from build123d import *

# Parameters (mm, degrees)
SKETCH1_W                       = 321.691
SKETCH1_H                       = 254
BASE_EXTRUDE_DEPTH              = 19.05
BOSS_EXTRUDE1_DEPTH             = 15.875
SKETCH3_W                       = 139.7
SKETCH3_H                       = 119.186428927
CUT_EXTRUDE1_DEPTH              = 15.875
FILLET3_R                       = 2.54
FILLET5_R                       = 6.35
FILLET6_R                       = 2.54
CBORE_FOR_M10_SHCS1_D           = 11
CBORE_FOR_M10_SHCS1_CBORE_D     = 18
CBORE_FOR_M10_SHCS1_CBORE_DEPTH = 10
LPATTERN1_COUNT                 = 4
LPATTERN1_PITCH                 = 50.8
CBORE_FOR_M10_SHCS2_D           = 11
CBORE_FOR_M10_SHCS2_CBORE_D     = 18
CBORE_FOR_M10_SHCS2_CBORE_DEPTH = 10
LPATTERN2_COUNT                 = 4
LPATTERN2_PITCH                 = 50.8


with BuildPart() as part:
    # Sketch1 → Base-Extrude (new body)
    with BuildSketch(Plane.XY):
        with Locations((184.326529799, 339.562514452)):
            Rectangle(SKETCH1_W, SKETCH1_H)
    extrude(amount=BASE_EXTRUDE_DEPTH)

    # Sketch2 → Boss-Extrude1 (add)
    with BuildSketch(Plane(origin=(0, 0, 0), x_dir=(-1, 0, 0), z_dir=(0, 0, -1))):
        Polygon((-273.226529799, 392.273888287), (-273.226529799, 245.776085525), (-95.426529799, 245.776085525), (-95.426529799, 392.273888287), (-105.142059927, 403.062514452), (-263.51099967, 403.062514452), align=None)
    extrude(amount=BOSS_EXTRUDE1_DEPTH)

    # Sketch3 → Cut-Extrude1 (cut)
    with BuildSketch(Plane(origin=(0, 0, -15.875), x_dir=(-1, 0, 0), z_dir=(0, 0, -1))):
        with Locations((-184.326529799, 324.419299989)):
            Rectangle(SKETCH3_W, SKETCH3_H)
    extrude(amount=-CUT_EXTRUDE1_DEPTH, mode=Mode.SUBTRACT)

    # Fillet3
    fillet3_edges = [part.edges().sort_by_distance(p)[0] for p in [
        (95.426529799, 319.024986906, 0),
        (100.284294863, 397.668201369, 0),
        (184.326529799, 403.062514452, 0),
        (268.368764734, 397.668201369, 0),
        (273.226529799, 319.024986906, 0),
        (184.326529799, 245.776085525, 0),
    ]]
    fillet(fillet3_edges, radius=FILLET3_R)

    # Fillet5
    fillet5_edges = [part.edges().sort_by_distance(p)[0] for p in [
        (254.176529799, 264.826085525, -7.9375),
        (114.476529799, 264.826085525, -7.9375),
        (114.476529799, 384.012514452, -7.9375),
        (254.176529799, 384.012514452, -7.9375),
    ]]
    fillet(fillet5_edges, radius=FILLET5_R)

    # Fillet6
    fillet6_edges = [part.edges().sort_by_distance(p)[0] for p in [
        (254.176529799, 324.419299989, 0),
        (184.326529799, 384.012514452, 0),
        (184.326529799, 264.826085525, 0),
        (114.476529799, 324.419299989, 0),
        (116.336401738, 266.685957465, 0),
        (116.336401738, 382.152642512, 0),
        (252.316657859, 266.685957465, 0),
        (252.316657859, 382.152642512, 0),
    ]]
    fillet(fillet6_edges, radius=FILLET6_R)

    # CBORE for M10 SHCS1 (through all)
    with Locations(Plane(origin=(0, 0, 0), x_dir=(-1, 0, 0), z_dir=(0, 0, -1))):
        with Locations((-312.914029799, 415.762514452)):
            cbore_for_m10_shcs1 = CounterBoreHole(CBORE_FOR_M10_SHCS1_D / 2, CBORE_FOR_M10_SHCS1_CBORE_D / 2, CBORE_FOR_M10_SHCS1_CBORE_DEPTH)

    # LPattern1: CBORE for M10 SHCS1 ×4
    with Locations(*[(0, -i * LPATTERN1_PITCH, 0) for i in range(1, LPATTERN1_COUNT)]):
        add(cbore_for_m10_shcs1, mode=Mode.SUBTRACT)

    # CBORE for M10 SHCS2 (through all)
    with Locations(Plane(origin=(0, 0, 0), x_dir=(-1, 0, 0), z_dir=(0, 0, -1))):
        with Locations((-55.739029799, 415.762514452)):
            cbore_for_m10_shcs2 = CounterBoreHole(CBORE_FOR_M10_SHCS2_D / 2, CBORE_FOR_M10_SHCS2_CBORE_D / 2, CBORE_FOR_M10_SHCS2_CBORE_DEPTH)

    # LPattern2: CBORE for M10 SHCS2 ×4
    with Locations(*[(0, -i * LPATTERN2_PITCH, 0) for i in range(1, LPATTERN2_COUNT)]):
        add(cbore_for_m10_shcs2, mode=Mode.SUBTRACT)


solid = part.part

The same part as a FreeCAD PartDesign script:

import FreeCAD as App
import Part
import Sketcher

V = App.Vector
Q = App.Units.Quantity


def edges_at(feature, points):
    """Names of the edges that pass closest to the given points."""
    edges = feature.Shape.Edges
    near = lambda p: min(range(len(edges)), key=lambda i: edges[i].distToShape(Part.Vertex(*p))[0])
    return sorted({f"Edge{near(p) + 1}" for p in points})

doc = App.newDocument("Part")
body = doc.addObject("PartDesign::Body", "Body")

sketch1 = body.newObject("Sketcher::SketchObject", "Sketch")
sketch1.AttachmentSupport = (doc.getObject("XY_Plane"), [""])
sketch1.MapMode = "FlatFace"
sketch1.addGeometry(Part.LineSegment(V(23, 467, 0), V(23, 213, 0)), False)
sketch1.addGeometry(Part.LineSegment(V(23, 213, 0), V(345, 213, 0)), False)
sketch1.addGeometry(Part.LineSegment(V(345, 213, 0), V(345, 467, 0)), False)
sketch1.addGeometry(Part.LineSegment(V(345, 467, 0), V(23, 467, 0)), False)
sketch1.addConstraint(Sketcher.Constraint("Coincident", 0, 2, 1, 1))
sketch1.addConstraint(Sketcher.Constraint("Coincident", 1, 2, 2, 1))
sketch1.addConstraint(Sketcher.Constraint("Coincident", 2, 2, 3, 1))
sketch1.addConstraint(Sketcher.Constraint("Coincident", 3, 2, 0, 1))
sketch1.addConstraint(Sketcher.Constraint("Vertical", 0))
sketch1.addConstraint(Sketcher.Constraint("Horizontal", 1))
sketch1.addConstraint(Sketcher.Constraint("Vertical", 2))
sketch1.addConstraint(Sketcher.Constraint("Horizontal", 3))
sketch1.addConstraint(Sketcher.Constraint("DistanceY", 0, 2, 0, 1, Q("10 in")))
sketch1.addConstraint(Sketcher.Constraint("DistanceX", 1, 1, 1, 2, Q("12.665 in")))
sketch1.addConstraint(Sketcher.Constraint("DistanceX", -1, 1, 0, 2, Q("23.48103 mm")))
sketch1.addConstraint(Sketcher.Constraint("DistanceY", -1, 1, 0, 2, Q("212.562514 mm")))
pad1 = body.newObject("PartDesign::Pad", "Pad")
pad1.Profile = sketch1
pad1.Length = Q("0.75 in")

sketch2 = body.newObject("Sketcher::SketchObject", "Sketch001")
sketch2.AttachmentSupport = (doc.getObject("XY_Plane"), [""])
sketch2.MapMode = "FlatFace"
sketch2.addGeometry(Part.LineSegment(V(273, 392, 0), V(273, 246, 0)), False)
sketch2.addGeometry(Part.LineSegment(V(273, 246, 0), V(95, 246, 0)), False)
sketch2.addGeometry(Part.LineSegment(V(95, 246, 0), V(95, 392, 0)), False)
sketch2.addGeometry(Part.LineSegment(V(95, 392, 0), V(105, 403, 0)), False)
sketch2.addGeometry(Part.LineSegment(V(105, 403, 0), V(264, 403, 0)), False)
sketch2.addGeometry(Part.LineSegment(V(264, 403, 0), V(273, 392, 0)), False)
sketch2.addConstraint(Sketcher.Constraint("Coincident", 0, 2, 1, 1))
sketch2.addConstraint(Sketcher.Constraint("Coincident", 1, 2, 2, 1))
sketch2.addConstraint(Sketcher.Constraint("Coincident", 2, 2, 3, 1))
sketch2.addConstraint(Sketcher.Constraint("Coincident", 3, 2, 4, 1))
sketch2.addConstraint(Sketcher.Constraint("Coincident", 4, 2, 5, 1))
sketch2.addConstraint(Sketcher.Constraint("Coincident", 5, 2, 0, 1))
sketch2.addConstraint(Sketcher.Constraint("Vertical", 0))
sketch2.addConstraint(Sketcher.Constraint("Horizontal", 1))
sketch2.addConstraint(Sketcher.Constraint("Vertical", 2))
sketch2.addConstraint(Sketcher.Constraint("Horizontal", 4))
sketch2.addConstraint(Sketcher.Constraint("Horizontal", 2, 2, 5, 2))
sketch2.addConstraint(Sketcher.Constraint("Equal", 3, 5))
sketch2.addConstraint(Sketcher.Constraint("DistanceX", 1, 2, 1, 1, Q("7 in")))
sketch2.addConstraint(Sketcher.Constraint("DistanceX", 4, 1, 4, 2, Q("158.36894 mm")))
sketch2.addConstraint(Sketcher.Constraint("DistanceX", -1, 1, 4, 2, Q("263.511 mm")))
sketch2.addConstraint(Sketcher.Constraint("Distance", 3, Q("14.51847 mm")))
sketch2.addConstraint(Sketcher.Constraint("DistanceY", 0, 2, 0, 1, Q("146.497803 mm")))
sketch2.addConstraint(Sketcher.Constraint("DistanceY", -1, 1, 2, 2, Q("392.273888 mm")))
pad2 = body.newObject("PartDesign::Pad", "Pad001")
pad2.Profile = sketch2
pad2.Length = Q("0.625 in")
pad2.Reversed = True

sketch3 = body.newObject("Sketcher::SketchObject", "Sketch002")
sketch3.AttachmentSupport = (doc.getObject("XY_Plane"), [""])
sketch3.MapMode = "FlatFace"
sketch3.AttachmentOffset = App.Placement(V(0, 0, -0.625 * 25.4), App.Rotation())
sketch3.addGeometry(Part.LineSegment(V(254, 384, 0), V(254, 265, 0)), False)
sketch3.addGeometry(Part.LineSegment(V(254, 265, 0), V(114, 265, 0)), False)
sketch3.addGeometry(Part.LineSegment(V(114, 265, 0), V(114, 384, 0)), False)
sketch3.addGeometry(Part.LineSegment(V(114, 384, 0), V(254, 384, 0)), False)
sketch3.addConstraint(Sketcher.Constraint("Coincident", 0, 2, 1, 1))
sketch3.addConstraint(Sketcher.Constraint("Coincident", 1, 2, 2, 1))
sketch3.addConstraint(Sketcher.Constraint("Coincident", 2, 2, 3, 1))
sketch3.addConstraint(Sketcher.Constraint("Coincident", 3, 2, 0, 1))
sketch3.addConstraint(Sketcher.Constraint("Vertical", 0))
sketch3.addConstraint(Sketcher.Constraint("Horizontal", 1))
sketch3.addConstraint(Sketcher.Constraint("Vertical", 2))
sketch3.addConstraint(Sketcher.Constraint("Horizontal", 3))
sketch3.addConstraint(Sketcher.Constraint("DistanceX", 1, 2, 1, 1, Q("5.5 in")))
sketch3.addConstraint(Sketcher.Constraint("DistanceY", 0, 2, 0, 1, Q("119.186429 mm")))
sketch3.addConstraint(Sketcher.Constraint("DistanceX", -1, 1, 0, 2, Q("254.17653 mm")))
sketch3.addConstraint(Sketcher.Constraint("DistanceY", -1, 1, 0, 2, Q("264.826086 mm")))
pocket1 = body.newObject("PartDesign::Pocket", "Pocket")
pocket1.Profile = sketch3
pocket1.Length = Q("0.625 in")
pocket1.Reversed = True
doc.recompute()

fillet = body.newObject("PartDesign::Fillet", "Fillet")
fillet.Base = (pocket1, edges_at(pocket1, [
    (95.427, 319.025, 0),
    (100.284, 397.668, 0),
    (184.327, 403.063, 0),
    (268.369, 397.668, 0),
    (273.227, 319.025, 0),
    (184.327, 245.776, 0),
]))
fillet.Radius = Q("0.1 in")
doc.recompute()

fillet2 = body.newObject("PartDesign::Fillet", "Fillet001")
fillet2.Base = (fillet, edges_at(fillet, [
    (254.177, 264.826, -7.938),
    (114.477, 264.826, -7.938),
    (114.477, 384.013, -7.938),
    (254.177, 384.013, -7.938),
]))
fillet2.Radius = Q("0.25 in")
doc.recompute()

fillet3 = body.newObject("PartDesign::Fillet", "Fillet002")
fillet3.Base = (fillet2, edges_at(fillet2, [
    (254.177, 324.419, 0),
    (184.327, 384.013, 0),
    (184.327, 264.826, 0),
    (114.477, 324.419, 0),
    (116.336, 266.686, 0),
    (116.336, 382.153, 0),
    (252.317, 266.686, 0),
    (252.317, 382.153, 0),
]))
fillet3.Radius = Q("0.1 in")

sketch4 = body.newObject("Sketcher::SketchObject", "Sketch003")
sketch4.AttachmentSupport = (doc.getObject("XY_Plane"), [""])
sketch4.MapMode = "FlatFace"
sketch4.addGeometry(Part.Circle(V(313, 416, 0), V(0, 0, 1), 6), False)
sketch4.addConstraint(Sketcher.Constraint("Diameter", 0, Q("11 mm")))
sketch4.addConstraint(Sketcher.Constraint("DistanceX", -1, 1, 0, 3, Q("312.91403 mm")))
sketch4.addConstraint(Sketcher.Constraint("DistanceY", -1, 1, 0, 3, Q("415.762514 mm")))
doc.recompute()
hole = body.newObject("PartDesign::Hole", "Hole")
hole.Profile = sketch4
hole.ThreadType = "None"
hole.Diameter = 11
hole.DepthType = "ThroughAll"
hole.HoleCutType = "Counterbore"
hole.HoleCutDiameter = 18
hole.HoleCutDepth = 10
hole.Reversed = True
doc.recompute()

linearpattern = body.newObject("PartDesign::LinearPattern", "LinearPattern")
linearpattern.Originals = [hole]
linearpattern.Direction = (doc.getObject("Y_Axis"), [""])
linearpattern.Mode = "offset"
linearpattern.Offset = Q("2 in")
linearpattern.Occurrences = 4
linearpattern.Reversed = True
body.Tip = linearpattern

sketch5 = body.newObject("Sketcher::SketchObject", "Sketch004")
sketch5.AttachmentSupport = (doc.getObject("XY_Plane"), [""])
sketch5.MapMode = "FlatFace"
sketch5.addGeometry(Part.Circle(V(56, 416, 0), V(0, 0, 1), 6), False)
sketch5.addConstraint(Sketcher.Constraint("Diameter", 0, Q("11 mm")))
sketch5.addConstraint(Sketcher.Constraint("DistanceX", -1, 1, 0, 3, Q("55.73903 mm")))
sketch5.addConstraint(Sketcher.Constraint("DistanceY", -1, 1, 0, 3, Q("415.762514 mm")))
doc.recompute()
hole2 = body.newObject("PartDesign::Hole", "Hole001")
hole2.Profile = sketch5
hole2.ThreadType = "None"
hole2.Diameter = 11
hole2.DepthType = "ThroughAll"
hole2.HoleCutType = "Counterbore"
hole2.HoleCutDiameter = 18
hole2.HoleCutDepth = 10
hole2.Reversed = True
doc.recompute()

linearpattern2 = body.newObject("PartDesign::LinearPattern", "LinearPattern001")
linearpattern2.Originals = [hole2]
linearpattern2.Direction = (doc.getObject("Y_Axis"), [""])
linearpattern2.Mode = "offset"
linearpattern2.Offset = Q("2 in")
linearpattern2.Occurrences = 4
linearpattern2.Reversed = True
body.Tip = linearpattern2

doc.recompute()
